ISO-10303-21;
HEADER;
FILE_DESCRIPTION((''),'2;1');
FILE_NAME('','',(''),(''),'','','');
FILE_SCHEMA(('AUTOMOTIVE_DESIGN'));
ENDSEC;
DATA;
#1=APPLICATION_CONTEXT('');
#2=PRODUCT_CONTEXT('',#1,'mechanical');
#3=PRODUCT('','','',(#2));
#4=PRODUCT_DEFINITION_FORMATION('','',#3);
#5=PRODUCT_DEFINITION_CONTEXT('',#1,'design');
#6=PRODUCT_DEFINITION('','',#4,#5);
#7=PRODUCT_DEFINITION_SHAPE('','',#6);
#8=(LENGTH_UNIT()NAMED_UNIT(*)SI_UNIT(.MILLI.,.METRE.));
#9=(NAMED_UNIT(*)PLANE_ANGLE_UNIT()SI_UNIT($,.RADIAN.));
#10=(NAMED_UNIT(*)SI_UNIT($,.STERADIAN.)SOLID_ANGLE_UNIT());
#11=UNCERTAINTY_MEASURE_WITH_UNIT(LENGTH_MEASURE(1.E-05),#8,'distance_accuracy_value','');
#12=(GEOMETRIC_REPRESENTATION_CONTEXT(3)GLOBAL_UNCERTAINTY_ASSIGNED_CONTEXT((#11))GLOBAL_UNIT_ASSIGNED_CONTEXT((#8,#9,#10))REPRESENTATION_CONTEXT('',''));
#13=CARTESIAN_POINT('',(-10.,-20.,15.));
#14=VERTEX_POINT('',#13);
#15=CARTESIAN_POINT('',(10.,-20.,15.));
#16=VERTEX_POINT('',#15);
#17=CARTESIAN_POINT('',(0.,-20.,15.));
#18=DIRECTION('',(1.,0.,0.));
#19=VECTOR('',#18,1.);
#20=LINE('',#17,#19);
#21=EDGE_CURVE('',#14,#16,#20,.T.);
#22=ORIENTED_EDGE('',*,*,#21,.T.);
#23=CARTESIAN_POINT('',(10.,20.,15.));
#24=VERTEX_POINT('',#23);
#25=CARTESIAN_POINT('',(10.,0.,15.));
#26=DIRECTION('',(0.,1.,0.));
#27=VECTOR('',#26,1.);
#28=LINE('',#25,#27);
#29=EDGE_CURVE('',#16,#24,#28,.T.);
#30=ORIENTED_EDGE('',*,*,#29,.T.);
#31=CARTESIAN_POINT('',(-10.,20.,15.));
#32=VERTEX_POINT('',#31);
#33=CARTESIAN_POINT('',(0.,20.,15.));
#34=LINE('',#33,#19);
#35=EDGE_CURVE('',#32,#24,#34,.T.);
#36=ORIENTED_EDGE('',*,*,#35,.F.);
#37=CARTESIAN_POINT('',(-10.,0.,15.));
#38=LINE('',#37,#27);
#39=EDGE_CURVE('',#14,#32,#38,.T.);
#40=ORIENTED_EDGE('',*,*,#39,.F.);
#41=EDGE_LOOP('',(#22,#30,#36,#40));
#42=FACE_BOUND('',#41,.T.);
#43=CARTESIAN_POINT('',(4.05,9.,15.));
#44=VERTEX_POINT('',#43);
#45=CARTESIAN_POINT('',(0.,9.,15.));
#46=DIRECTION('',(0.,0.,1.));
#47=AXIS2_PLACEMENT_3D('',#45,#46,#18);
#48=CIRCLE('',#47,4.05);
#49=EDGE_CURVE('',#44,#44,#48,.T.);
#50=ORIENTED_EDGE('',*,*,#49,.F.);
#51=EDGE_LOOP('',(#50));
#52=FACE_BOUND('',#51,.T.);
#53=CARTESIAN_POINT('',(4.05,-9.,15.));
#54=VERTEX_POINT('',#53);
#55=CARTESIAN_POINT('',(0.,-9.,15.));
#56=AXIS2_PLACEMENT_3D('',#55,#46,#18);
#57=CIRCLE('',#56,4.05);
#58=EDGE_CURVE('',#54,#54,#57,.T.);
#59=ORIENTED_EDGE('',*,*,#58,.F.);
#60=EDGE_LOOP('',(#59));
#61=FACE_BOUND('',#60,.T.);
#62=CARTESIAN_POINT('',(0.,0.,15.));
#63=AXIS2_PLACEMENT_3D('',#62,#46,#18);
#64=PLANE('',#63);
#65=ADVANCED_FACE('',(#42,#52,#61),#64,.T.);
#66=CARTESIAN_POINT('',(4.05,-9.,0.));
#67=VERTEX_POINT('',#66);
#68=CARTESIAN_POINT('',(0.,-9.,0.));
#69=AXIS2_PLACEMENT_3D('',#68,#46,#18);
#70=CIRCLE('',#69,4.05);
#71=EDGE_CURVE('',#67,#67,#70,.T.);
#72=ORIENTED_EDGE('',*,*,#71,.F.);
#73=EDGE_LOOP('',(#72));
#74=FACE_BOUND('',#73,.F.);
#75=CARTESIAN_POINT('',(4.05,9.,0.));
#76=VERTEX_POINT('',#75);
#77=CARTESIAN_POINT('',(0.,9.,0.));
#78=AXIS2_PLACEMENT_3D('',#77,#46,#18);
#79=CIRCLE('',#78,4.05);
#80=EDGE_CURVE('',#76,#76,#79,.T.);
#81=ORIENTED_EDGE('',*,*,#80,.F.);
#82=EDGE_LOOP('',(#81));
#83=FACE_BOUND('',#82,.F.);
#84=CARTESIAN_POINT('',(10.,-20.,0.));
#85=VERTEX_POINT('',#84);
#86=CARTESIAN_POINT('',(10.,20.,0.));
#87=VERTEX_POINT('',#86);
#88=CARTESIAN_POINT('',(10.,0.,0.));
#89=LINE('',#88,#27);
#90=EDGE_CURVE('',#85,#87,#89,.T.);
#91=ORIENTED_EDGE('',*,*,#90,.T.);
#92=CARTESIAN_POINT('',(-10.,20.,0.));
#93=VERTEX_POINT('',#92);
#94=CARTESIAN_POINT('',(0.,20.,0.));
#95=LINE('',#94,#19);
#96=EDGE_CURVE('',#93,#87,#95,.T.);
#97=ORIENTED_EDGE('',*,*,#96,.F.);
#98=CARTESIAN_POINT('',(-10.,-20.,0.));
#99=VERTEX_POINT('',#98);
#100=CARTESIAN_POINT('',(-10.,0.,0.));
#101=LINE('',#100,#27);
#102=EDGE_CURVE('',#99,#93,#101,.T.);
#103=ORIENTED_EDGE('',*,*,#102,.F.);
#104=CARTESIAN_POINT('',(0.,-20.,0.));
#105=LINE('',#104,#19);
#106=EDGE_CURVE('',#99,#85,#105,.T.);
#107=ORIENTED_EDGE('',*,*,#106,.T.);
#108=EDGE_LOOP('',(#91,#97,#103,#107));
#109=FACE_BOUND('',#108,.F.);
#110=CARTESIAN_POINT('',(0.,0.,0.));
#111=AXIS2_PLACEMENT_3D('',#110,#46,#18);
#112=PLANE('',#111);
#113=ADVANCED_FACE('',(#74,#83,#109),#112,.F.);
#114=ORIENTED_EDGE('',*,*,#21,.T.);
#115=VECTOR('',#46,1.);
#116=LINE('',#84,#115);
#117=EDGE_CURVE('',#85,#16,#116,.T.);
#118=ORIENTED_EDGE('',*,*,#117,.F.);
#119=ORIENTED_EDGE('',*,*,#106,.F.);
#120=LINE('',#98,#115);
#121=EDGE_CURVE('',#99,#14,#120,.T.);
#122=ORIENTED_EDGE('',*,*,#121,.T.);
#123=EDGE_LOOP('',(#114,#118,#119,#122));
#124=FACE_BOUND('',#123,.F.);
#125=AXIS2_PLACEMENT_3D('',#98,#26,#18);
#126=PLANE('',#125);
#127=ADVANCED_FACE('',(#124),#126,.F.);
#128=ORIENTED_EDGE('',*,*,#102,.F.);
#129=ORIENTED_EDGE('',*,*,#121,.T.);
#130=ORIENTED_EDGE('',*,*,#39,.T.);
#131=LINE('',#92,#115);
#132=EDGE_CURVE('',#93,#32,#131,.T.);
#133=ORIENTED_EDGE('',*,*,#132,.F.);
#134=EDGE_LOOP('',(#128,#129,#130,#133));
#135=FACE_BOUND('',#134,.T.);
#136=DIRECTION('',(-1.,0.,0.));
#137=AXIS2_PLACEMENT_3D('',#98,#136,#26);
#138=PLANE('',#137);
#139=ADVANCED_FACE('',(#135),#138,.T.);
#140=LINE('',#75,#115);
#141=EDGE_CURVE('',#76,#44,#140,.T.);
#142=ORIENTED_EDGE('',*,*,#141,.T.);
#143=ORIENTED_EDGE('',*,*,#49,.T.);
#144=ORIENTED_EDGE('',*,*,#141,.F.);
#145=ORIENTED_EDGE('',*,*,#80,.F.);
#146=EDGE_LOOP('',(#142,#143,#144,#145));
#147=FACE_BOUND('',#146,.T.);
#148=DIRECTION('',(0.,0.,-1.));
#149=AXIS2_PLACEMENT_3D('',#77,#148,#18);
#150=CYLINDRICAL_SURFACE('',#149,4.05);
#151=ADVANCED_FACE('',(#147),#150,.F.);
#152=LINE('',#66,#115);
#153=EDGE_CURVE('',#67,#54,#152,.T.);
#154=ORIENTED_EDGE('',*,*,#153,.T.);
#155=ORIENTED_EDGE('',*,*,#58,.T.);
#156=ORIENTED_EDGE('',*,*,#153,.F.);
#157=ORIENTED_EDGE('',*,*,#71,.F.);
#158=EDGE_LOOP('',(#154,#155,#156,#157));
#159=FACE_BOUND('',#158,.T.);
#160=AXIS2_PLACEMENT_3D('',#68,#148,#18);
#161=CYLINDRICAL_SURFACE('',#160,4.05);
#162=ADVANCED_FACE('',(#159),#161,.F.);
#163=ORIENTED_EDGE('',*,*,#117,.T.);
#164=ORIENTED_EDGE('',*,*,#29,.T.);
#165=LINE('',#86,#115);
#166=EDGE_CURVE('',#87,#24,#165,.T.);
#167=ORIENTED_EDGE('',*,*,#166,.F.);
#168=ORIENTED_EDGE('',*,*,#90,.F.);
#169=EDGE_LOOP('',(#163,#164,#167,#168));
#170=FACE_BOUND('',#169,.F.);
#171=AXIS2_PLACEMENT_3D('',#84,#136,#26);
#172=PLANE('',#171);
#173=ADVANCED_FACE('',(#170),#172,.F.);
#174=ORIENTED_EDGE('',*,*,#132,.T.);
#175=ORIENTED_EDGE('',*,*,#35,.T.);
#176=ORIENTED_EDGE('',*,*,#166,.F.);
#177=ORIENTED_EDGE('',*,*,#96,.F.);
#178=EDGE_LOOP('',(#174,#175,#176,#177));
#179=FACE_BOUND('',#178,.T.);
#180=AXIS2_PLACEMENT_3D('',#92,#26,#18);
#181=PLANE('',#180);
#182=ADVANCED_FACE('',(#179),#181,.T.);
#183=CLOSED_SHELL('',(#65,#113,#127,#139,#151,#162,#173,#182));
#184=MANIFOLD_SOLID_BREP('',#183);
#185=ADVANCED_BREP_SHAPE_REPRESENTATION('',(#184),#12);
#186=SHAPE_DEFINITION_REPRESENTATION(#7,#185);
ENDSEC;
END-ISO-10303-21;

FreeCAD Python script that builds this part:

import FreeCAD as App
import Part
import Sketcher


def add_polygon(sketch, points):
    """Adds a closed chain of lines whose ends are joined by coincident constraints."""
    first, n = sketch.GeometryCount, len(points)
    for a, b in zip(points, points[1:] + points[:1]):
        sketch.addGeometry(Part.LineSegment(App.Vector(*a, 0), App.Vector(*b, 0)), False)
    for i in range(n):
        sketch.addConstraint(Sketcher.Constraint("Coincident", first + i, 2, first + (i + 1) % n, 1))

doc = App.newDocument("Part")
body = doc.addObject("PartDesign::Body", "Body")

# Sketch on XY plane
sketch1 = doc.addObject("Sketcher::SketchObject", "Sketch")
body.addObject(sketch1)
sketch1.AttachmentSupport = (doc.XY_Plane, [""])
sketch1.MapMode = "FlatFace"
add_polygon(sketch1, [(-10, 20), (-10, -20), (10, -20), (10, 20)])  # lines 0-3
sketch1.addGeometry(Part.Circle(App.Vector(0, -9, 0), App.Vector(0, 0, 1), 4), False)  # 4
sketch1.addGeometry(Part.Circle(App.Vector(0, 9, 0), App.Vector(0, 0, 1), 4), False)  # 5
sketch1.addConstraint(Sketcher.Constraint("Vertical", 0))
sketch1.addConstraint(Sketcher.Constraint("Horizontal", 1))
sketch1.addConstraint(Sketcher.Constraint("Vertical", 2))
sketch1.addConstraint(Sketcher.Constraint("Horizontal", 3))
sketch1.addConstraint(Sketcher.Constraint("Equal", 4, 5))
sketch1.addConstraint(Sketcher.Constraint("Symmetric", 4, 3, 5, 3, -1, 1))
sketch1.addConstraint(Sketcher.Constraint("Symmetric", 0, 2, 2, 2, -1, 1))
sketch1.addConstraint(Sketcher.Constraint("PointOnObject", 4, 3, -2))
sketch1.addConstraint(Sketcher.Constraint("Diameter", 4, 8.1))
sketch1.addConstraint(Sketcher.Constraint("DistanceX", 1, 1, 1, 2, 20.0))
sketch1.addConstraint(Sketcher.Constraint("DistanceY", 0, 2, 0, 1, 40.0))
sketch1.addConstraint(Sketcher.Constraint("DistanceY", 4, 3, -1, 1, 9.0))
pad1 = doc.addObject("PartDesign::Pad", "Pad")
body.addObject(pad1)
pad1.Profile = sketch1
pad1.Length = 15

doc.recompute()
